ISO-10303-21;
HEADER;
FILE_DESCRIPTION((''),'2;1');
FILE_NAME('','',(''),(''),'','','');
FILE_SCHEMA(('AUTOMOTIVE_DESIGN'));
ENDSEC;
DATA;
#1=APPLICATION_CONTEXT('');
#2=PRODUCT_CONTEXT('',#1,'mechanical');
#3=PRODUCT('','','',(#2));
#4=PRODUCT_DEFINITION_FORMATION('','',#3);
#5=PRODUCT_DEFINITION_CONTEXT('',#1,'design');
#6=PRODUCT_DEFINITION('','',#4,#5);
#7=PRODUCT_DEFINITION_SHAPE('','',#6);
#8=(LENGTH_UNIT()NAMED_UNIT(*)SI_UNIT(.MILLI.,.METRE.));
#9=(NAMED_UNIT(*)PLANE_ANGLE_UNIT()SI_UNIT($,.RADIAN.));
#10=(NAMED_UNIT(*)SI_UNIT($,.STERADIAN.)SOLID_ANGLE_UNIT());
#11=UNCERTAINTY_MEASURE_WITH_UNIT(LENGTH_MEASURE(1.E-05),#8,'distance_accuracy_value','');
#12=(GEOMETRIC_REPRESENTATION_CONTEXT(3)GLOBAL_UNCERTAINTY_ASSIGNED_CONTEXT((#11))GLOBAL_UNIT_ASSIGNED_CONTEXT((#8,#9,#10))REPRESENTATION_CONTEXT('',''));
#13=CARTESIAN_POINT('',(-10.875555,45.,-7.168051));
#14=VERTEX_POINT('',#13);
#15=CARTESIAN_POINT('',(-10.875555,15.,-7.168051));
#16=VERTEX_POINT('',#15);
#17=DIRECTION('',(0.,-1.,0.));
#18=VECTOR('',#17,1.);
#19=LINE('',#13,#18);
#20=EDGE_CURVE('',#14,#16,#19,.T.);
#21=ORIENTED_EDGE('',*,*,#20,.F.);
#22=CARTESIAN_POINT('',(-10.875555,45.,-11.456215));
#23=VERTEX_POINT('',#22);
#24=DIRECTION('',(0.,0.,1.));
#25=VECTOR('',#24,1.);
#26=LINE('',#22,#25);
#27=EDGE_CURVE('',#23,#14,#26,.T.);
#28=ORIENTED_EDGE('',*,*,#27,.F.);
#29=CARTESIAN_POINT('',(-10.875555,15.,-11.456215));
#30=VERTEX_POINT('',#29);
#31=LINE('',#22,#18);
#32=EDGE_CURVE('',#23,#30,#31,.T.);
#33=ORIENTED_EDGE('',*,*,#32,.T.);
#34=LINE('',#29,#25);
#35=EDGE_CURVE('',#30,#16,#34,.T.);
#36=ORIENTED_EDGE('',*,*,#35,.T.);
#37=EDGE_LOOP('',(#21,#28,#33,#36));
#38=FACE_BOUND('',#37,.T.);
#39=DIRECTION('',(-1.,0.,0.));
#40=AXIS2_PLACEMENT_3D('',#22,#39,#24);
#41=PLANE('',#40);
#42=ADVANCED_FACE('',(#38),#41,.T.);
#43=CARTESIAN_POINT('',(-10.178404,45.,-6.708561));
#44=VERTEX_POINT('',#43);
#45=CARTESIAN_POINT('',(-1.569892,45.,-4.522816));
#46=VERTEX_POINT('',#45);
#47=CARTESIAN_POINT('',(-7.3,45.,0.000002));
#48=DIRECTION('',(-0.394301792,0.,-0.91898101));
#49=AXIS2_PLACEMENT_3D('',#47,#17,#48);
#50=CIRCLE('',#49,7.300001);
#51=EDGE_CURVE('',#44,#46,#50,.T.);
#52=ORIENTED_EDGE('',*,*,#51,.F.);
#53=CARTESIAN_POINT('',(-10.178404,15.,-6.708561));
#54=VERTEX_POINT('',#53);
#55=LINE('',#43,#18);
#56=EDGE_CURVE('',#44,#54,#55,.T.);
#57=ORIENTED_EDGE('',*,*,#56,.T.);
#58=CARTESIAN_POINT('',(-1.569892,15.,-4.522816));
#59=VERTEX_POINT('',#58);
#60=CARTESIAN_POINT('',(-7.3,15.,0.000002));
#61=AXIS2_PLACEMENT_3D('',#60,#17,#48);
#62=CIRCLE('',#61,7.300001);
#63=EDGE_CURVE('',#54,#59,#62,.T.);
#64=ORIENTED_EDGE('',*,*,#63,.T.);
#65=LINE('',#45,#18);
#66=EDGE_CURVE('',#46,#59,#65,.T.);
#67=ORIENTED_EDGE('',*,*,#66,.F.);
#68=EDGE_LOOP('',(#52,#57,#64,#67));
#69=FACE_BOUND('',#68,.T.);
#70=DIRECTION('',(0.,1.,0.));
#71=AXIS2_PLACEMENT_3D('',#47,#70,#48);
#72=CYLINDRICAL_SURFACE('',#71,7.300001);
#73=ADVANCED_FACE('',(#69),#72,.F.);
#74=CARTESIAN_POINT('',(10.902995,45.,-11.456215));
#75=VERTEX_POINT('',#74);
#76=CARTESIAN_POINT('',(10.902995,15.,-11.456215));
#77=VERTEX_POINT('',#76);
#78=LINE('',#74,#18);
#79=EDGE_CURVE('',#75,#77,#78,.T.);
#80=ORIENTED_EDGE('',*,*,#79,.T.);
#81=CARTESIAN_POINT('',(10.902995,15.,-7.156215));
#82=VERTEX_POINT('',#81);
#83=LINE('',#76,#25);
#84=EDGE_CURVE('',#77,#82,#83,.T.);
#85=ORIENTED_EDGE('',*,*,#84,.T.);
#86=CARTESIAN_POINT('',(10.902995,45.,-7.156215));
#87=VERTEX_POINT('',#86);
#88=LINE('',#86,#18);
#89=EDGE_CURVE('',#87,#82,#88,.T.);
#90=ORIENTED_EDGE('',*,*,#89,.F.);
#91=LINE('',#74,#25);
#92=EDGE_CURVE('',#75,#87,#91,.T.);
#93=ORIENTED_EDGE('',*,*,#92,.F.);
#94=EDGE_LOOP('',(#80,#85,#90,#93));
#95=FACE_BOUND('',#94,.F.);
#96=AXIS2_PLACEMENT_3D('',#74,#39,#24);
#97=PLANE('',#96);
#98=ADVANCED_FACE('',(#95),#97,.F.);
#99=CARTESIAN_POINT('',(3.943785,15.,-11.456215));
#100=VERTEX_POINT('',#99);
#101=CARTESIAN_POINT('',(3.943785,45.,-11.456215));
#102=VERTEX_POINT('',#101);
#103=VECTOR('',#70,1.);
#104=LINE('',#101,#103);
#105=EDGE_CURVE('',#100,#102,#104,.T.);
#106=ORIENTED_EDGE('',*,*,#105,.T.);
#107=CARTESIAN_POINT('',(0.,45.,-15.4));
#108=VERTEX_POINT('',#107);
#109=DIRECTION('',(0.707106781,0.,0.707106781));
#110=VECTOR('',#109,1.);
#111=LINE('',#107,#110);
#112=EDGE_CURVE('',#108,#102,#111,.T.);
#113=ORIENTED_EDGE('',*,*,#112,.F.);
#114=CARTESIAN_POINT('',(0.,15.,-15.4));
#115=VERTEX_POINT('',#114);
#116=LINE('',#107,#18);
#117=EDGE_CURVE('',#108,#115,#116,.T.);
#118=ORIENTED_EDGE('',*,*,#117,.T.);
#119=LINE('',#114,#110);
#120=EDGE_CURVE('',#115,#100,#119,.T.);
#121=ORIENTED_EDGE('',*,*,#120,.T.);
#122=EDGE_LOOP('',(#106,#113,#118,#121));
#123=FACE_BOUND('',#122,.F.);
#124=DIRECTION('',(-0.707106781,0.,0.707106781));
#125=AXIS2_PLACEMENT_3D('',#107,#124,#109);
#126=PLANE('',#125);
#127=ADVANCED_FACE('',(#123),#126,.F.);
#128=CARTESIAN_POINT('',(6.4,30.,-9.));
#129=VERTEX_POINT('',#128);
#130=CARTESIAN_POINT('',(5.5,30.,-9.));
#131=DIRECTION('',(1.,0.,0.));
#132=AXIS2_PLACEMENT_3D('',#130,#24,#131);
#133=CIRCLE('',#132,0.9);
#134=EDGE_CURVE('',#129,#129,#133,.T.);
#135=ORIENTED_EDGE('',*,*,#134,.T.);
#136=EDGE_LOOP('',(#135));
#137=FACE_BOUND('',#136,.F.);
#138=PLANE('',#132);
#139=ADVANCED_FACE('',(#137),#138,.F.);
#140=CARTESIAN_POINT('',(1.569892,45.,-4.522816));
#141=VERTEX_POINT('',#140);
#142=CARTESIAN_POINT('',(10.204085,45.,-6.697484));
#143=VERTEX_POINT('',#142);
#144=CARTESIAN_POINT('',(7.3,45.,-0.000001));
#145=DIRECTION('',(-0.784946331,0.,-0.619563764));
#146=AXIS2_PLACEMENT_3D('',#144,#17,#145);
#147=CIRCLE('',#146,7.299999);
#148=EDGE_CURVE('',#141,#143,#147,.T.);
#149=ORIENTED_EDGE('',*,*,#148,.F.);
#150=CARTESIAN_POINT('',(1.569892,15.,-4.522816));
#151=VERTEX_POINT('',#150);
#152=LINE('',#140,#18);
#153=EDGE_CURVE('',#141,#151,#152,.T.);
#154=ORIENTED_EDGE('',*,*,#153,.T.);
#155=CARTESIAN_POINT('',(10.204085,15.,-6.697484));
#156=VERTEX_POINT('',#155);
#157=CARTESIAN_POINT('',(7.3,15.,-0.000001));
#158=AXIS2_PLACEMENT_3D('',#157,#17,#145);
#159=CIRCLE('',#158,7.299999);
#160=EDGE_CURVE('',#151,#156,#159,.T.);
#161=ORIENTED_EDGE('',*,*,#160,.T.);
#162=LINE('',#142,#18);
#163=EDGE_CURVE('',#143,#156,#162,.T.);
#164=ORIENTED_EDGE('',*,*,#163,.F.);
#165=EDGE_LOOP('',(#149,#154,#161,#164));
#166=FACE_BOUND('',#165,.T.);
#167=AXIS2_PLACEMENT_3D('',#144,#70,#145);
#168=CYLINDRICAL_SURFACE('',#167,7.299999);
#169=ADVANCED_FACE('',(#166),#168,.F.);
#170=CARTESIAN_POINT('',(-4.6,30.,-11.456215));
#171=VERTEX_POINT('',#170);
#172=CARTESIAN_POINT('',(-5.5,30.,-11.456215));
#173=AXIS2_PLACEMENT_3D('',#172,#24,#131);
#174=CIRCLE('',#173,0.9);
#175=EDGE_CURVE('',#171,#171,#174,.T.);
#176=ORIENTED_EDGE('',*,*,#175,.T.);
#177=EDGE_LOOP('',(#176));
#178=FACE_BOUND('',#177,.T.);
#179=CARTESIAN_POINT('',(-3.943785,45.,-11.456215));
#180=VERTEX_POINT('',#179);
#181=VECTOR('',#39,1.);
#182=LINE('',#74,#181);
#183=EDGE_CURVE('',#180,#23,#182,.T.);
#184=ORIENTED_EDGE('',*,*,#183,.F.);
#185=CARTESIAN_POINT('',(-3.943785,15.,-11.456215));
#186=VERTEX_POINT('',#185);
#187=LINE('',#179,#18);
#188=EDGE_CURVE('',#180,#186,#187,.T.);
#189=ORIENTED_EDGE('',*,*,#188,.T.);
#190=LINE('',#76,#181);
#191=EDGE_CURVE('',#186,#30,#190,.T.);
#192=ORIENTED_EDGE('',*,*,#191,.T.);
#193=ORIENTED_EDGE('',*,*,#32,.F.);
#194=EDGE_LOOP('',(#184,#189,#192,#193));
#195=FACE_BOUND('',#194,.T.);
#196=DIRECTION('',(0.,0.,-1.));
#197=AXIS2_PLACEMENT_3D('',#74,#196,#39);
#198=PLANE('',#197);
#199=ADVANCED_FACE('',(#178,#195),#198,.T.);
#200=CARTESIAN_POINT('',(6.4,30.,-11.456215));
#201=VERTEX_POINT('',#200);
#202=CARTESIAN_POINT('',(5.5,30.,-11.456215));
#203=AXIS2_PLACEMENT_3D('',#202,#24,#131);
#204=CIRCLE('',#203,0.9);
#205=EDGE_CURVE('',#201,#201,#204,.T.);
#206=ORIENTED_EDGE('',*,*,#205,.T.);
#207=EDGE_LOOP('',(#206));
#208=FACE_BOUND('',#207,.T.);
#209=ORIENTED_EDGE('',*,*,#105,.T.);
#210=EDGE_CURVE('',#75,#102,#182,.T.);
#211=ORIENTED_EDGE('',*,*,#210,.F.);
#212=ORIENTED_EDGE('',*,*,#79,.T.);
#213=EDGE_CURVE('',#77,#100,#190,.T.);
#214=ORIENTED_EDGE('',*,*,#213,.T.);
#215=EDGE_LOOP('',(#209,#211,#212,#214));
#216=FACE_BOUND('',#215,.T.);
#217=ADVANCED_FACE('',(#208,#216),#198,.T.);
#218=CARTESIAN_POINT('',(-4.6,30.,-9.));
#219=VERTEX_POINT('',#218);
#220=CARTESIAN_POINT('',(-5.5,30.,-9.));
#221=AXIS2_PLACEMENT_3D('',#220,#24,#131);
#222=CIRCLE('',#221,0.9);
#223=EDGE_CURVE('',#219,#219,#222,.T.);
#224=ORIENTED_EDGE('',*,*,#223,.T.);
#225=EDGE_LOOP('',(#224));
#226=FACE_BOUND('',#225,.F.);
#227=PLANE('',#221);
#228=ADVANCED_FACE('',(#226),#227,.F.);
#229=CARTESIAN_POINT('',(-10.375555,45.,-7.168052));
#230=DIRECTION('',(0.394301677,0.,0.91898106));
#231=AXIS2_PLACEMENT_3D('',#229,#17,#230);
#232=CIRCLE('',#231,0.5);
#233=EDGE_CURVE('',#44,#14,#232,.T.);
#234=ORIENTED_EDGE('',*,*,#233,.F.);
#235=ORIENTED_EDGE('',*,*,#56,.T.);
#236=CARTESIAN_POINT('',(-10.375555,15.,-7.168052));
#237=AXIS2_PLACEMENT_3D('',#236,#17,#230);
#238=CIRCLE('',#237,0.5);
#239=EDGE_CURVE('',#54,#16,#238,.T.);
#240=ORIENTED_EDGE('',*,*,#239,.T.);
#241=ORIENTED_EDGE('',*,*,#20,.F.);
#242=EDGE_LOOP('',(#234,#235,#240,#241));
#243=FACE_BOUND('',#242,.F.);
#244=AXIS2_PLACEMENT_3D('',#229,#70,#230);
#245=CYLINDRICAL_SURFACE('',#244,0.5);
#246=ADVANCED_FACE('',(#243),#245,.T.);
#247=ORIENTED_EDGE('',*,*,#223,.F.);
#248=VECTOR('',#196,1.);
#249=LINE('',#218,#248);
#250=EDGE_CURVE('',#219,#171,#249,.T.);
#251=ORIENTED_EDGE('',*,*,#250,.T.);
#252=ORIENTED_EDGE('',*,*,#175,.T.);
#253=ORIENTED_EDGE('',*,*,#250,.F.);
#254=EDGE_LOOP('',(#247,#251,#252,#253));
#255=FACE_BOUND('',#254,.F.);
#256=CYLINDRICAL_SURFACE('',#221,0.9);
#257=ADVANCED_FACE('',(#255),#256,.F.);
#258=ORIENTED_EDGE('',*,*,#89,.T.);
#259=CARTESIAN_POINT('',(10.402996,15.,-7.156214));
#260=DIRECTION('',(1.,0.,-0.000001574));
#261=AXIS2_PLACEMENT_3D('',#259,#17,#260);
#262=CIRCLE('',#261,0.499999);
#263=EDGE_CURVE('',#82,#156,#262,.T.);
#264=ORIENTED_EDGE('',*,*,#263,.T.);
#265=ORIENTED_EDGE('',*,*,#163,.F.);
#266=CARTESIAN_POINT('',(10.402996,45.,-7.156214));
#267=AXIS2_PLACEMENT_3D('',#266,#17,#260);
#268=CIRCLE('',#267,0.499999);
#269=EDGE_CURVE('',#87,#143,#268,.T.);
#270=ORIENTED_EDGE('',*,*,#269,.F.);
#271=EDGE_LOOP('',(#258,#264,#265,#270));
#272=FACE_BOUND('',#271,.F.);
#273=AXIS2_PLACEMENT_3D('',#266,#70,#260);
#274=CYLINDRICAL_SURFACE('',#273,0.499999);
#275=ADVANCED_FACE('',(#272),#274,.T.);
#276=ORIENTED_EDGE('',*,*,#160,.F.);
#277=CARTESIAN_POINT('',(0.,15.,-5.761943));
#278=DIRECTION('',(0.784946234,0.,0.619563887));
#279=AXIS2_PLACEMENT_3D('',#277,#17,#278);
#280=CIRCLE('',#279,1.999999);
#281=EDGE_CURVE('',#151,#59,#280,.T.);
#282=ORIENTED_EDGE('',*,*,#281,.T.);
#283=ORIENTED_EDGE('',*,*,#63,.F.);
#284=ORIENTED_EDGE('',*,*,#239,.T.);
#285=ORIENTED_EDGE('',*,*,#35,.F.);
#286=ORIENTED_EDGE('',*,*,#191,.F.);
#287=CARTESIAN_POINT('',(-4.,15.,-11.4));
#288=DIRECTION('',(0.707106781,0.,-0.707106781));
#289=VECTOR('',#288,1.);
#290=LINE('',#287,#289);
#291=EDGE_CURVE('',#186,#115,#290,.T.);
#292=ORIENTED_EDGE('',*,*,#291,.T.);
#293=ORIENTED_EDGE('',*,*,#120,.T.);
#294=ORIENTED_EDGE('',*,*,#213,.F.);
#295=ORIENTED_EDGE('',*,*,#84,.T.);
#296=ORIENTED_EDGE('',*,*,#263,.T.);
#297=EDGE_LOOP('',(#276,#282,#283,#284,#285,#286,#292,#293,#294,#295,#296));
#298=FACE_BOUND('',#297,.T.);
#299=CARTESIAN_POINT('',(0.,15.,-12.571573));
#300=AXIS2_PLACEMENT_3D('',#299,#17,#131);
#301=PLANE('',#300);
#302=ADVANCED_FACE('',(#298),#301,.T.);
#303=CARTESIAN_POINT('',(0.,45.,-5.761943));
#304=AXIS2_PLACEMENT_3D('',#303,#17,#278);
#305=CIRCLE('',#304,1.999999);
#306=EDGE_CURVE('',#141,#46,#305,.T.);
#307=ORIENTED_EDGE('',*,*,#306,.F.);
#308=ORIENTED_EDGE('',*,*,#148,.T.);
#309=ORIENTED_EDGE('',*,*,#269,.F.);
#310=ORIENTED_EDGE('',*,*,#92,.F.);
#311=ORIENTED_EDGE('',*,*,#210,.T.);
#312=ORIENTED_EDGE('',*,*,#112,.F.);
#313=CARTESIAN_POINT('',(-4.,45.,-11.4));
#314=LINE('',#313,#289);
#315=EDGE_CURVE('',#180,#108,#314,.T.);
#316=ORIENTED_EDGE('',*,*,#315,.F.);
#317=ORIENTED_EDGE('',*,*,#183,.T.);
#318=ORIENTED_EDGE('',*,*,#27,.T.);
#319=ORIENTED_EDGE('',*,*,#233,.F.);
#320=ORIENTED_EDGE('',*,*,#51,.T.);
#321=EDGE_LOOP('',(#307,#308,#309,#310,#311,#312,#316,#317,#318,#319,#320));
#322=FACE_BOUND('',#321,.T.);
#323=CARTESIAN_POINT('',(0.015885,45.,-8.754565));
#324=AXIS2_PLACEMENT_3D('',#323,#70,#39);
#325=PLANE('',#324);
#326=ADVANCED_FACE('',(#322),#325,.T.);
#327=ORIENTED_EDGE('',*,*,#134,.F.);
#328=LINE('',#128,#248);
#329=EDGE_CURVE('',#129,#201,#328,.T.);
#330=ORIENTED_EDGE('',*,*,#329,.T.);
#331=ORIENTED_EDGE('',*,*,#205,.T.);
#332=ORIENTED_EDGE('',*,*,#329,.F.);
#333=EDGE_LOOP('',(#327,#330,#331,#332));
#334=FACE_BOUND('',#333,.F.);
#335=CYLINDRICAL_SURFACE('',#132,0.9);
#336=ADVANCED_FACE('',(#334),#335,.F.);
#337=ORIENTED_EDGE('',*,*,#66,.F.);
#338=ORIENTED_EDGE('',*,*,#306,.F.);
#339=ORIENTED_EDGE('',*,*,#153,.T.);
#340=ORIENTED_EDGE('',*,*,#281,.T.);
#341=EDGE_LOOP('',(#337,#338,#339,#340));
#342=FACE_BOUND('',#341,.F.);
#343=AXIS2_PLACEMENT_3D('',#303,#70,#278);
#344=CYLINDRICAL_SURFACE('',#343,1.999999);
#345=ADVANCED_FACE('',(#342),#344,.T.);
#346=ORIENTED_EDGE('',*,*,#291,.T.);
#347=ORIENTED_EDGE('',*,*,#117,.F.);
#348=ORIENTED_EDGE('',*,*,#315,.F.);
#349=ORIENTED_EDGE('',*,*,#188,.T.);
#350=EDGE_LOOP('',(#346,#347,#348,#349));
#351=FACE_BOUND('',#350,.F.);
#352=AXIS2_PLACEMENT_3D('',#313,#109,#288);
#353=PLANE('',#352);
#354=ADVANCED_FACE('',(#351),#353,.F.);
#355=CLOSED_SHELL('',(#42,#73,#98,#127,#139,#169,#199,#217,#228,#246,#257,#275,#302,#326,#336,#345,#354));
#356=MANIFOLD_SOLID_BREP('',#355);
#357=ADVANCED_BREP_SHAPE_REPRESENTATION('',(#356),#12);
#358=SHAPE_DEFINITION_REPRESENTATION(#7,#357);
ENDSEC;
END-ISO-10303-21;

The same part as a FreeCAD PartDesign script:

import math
import FreeCAD as App
import Part
import Sketcher
from FreeCAD import Vector
Q = App.Units.Quantity

doc = App.newDocument("Part")
body = doc.addObject("PartDesign::Body", "Body")

sketch1 = doc.addObject("Sketcher::SketchObject", "Sketch")
body.addObject(sketch1)
sketch1.AttachmentSupport = (doc.XZ_Plane, [""])
sketch1.MapMode = "FlatFace"
sketch1.AttachmentOffset = App.Placement(Vector(0, 0, -45), App.Rotation())
sketch1.addGeometry(Part.ArcOfCircle(Part.Circle(Vector(-7.3, 0, 0), Vector(0, 0, 1), 7.3), math.radians(-113), math.radians(-38)), False)
sketch1.addGeometry(Part.ArcOfCircle(Part.Circle(Vector(-10.38, -7.17, 0), Vector(0, 0, 1), 0.5), math.radians(67), math.radians(180)), False)
sketch1.addGeometry(Part.LineSegment(Vector(-10.88, -7.17, 0), Vector(-10.88, -11.46, 0)), False)
sketch1.addGeometry(Part.LineSegment(Vector(-10.88, -11.46, 0), Vector(10.9, -11.46, 0)), False)
sketch1.addGeometry(Part.LineSegment(Vector(10.9, -11.46, 0), Vector(10.9, -7.16, 0)), False)
sketch1.addGeometry(Part.ArcOfCircle(Part.Circle(Vector(10.4, -7.16, 0), Vector(0, 0, 1), 0.5), math.radians(0), math.radians(113)), False)
sketch1.addGeometry(Part.ArcOfCircle(Part.Circle(Vector(7.3, 0, 0), Vector(0, 0, 1), 7.3), math.radians(-142), math.radians(-67)), False)
sketch1.addGeometry(Part.ArcOfCircle(Part.Circle(Vector(0, -5.76, 0), Vector(0, 0, 1), 2), math.radians(38), math.radians(142)), False)
sketch1.addConstraint(Sketcher.Constraint("Tangent", 0, 1, 1, 1))
sketch1.addConstraint(Sketcher.Constraint("Tangent", 1, 2, 2, 1))
sketch1.addConstraint(Sketcher.Constraint("Coincident", 2, 2, 3, 1))
sketch1.addConstraint(Sketcher.Constraint("Coincident", 3, 2, 4, 1))
sketch1.addConstraint(Sketcher.Constraint("Tangent", 4, 2, 5, 1))
sketch1.addConstraint(Sketcher.Constraint("Coincident", 5, 2, 6, 2))
sketch1.addConstraint(Sketcher.Constraint("Tangent", 6, 1, 7, 1))
sketch1.addConstraint(Sketcher.Constraint("Tangent", 7, 2, 0, 2))
sketch1.addConstraint(Sketcher.Constraint("Vertical", 2))
sketch1.addConstraint(Sketcher.Constraint("Horizontal", 3))
sketch1.addConstraint(Sketcher.Constraint("Vertical", 4))
sketch1.addConstraint(Sketcher.Constraint("Equal", 1, 5))
sketch1.addConstraint(Sketcher.Constraint("Symmetric", 0, 3, 6, 3, -1, 1))
sketch1.addConstraint(Sketcher.Constraint("Symmetric", 6, 1, 7, 2, -2))
sketch1.addConstraint(Sketcher.Constraint("Radius", 7, Q("1.999999 mm")))
sketch1.addConstraint(Sketcher.Constraint("Radius", 0, Q("7.300001 mm")))
sketch1.addConstraint(Sketcher.Constraint("Radius", 1, Q("0.5 mm")))
sketch1.addConstraint(Sketcher.Constraint("DistanceY", 4, 1, 4, 2, Q("4.3 mm")))
sketch1.addConstraint(Sketcher.Constraint("DistanceX", 0, 3, -1, 1, Q("7.3 mm")))
sketch1.addConstraint(Sketcher.Constraint("DistanceX", 3, 1, 3, 2, Q("21.77855 mm")))
sketch1.addConstraint(Sketcher.Constraint("DistanceX", 0, 1, 5, 3, Q("20.5814 mm")))
sketch1.addConstraint(Sketcher.Constraint("DistanceX", 5, 2, 5, 3, Q("0.198911 mm")))
pad1 = doc.addObject("PartDesign::Pad", "Pad")
body.addObject(pad1)
pad1.Profile = sketch1
pad1.Length = 30

sketch2 = doc.addObject("Sketcher::SketchObject", "Sketch001")
body.addObject(sketch2)
sketch2.AttachmentSupport = (doc.XZ_Plane, [""])
sketch2.MapMode = "FlatFace"
sketch2.AttachmentOffset = App.Placement(Vector(0, 0, -45), App.Rotation())
sketch2.addGeometry(Part.LineSegment(Vector(-4, -11, 0), Vector(0, -15, 0)), False)
sketch2.addGeometry(Part.LineSegment(Vector(0, -15, 0), Vector(4, -11, 0)), False)
sketch2.addGeometry(Part.LineSegment(Vector(4, -11, 0), Vector(-4, -11, 0)), False)
sketch2.addConstraint(Sketcher.Constraint("Coincident", 0, 2, 1, 1))
sketch2.addConstraint(Sketcher.Constraint("Coincident", 1, 2, 2, 1))
sketch2.addConstraint(Sketcher.Constraint("Coincident", 2, 2, 0, 1))
sketch2.addConstraint(Sketcher.Constraint("Horizontal", 2))
sketch2.addConstraint(Sketcher.Constraint("PointOnObject", 0, 2, -2))
sketch2.addConstraint(Sketcher.Constraint("Perpendicular", 0, 1))
sketch2.addConstraint(Sketcher.Constraint("Equal", 0, 1))
sketch2.addConstraint(Sketcher.Constraint("DistanceX", 2, 2, 2, 1, Q("8 mm")))
sketch2.addConstraint(Sketcher.Constraint("DistanceY", 0, 2, -1, 1, Q("15.4 mm")))
pad2 = doc.addObject("PartDesign::Pad", "Pad001")
body.addObject(pad2)
pad2.Profile = sketch2
pad2.Length = 30

sketch3 = doc.addObject("Sketcher::SketchObject", "Sketch002")
body.addObject(sketch3)
sketch3.AttachmentSupport = (doc.XY_Plane, [""])
sketch3.MapMode = "FlatFace"
sketch3.AttachmentOffset = App.Placement(Vector(0, 0, -9), App.Rotation())
sketch3.addGeometry(Part.Circle(Vector(-5.5, 30, 0), Vector(0, 0, 1), 0.9), False)
sketch3.addGeometry(Part.Circle(Vector(-5.5, -30, 0), Vector(0, 0, 1), 0.9), False)
sketch3.addGeometry(Part.Circle(Vector(5.5, 30, 0), Vector(0, 0, 1), 0.9), False)
sketch3.addGeometry(Part.Circle(Vector(5.5, -30, 0), Vector(0, 0, 1), 0.9), False)
sketch3.addConstraint(Sketcher.Constraint("Equal", 0, 1))
sketch3.addConstraint(Sketcher.Constraint("Equal", 1, 2))
sketch3.addConstraint(Sketcher.Constraint("Equal", 2, 3))
sketch3.addConstraint(Sketcher.Constraint("Symmetric", 1, 3, 2, 3, -1, 1))
sketch3.addConstraint(Sketcher.Constraint("Symmetric", 0, 3, 3, 3, -1, 1))
sketch3.addConstraint(Sketcher.Constraint("Symmetric", 0, 3, 2, 3, -2))
sketch3.addConstraint(Sketcher.Constraint("Diameter", 0, Q("1.8 mm")))
sketch3.addConstraint(Sketcher.Constraint("DistanceY", -1, 1, 0, 3, Q("30 mm")))
sketch3.addConstraint(Sketcher.Constraint("DistanceX", 0, 3, 2, 3, Q("11 mm")))
pocket1 = doc.addObject("PartDesign::Pocket", "Pocket")
body.addObject(pocket1)
pocket1.Profile = sketch3
pocket1.Length = 5

doc.recompute()
